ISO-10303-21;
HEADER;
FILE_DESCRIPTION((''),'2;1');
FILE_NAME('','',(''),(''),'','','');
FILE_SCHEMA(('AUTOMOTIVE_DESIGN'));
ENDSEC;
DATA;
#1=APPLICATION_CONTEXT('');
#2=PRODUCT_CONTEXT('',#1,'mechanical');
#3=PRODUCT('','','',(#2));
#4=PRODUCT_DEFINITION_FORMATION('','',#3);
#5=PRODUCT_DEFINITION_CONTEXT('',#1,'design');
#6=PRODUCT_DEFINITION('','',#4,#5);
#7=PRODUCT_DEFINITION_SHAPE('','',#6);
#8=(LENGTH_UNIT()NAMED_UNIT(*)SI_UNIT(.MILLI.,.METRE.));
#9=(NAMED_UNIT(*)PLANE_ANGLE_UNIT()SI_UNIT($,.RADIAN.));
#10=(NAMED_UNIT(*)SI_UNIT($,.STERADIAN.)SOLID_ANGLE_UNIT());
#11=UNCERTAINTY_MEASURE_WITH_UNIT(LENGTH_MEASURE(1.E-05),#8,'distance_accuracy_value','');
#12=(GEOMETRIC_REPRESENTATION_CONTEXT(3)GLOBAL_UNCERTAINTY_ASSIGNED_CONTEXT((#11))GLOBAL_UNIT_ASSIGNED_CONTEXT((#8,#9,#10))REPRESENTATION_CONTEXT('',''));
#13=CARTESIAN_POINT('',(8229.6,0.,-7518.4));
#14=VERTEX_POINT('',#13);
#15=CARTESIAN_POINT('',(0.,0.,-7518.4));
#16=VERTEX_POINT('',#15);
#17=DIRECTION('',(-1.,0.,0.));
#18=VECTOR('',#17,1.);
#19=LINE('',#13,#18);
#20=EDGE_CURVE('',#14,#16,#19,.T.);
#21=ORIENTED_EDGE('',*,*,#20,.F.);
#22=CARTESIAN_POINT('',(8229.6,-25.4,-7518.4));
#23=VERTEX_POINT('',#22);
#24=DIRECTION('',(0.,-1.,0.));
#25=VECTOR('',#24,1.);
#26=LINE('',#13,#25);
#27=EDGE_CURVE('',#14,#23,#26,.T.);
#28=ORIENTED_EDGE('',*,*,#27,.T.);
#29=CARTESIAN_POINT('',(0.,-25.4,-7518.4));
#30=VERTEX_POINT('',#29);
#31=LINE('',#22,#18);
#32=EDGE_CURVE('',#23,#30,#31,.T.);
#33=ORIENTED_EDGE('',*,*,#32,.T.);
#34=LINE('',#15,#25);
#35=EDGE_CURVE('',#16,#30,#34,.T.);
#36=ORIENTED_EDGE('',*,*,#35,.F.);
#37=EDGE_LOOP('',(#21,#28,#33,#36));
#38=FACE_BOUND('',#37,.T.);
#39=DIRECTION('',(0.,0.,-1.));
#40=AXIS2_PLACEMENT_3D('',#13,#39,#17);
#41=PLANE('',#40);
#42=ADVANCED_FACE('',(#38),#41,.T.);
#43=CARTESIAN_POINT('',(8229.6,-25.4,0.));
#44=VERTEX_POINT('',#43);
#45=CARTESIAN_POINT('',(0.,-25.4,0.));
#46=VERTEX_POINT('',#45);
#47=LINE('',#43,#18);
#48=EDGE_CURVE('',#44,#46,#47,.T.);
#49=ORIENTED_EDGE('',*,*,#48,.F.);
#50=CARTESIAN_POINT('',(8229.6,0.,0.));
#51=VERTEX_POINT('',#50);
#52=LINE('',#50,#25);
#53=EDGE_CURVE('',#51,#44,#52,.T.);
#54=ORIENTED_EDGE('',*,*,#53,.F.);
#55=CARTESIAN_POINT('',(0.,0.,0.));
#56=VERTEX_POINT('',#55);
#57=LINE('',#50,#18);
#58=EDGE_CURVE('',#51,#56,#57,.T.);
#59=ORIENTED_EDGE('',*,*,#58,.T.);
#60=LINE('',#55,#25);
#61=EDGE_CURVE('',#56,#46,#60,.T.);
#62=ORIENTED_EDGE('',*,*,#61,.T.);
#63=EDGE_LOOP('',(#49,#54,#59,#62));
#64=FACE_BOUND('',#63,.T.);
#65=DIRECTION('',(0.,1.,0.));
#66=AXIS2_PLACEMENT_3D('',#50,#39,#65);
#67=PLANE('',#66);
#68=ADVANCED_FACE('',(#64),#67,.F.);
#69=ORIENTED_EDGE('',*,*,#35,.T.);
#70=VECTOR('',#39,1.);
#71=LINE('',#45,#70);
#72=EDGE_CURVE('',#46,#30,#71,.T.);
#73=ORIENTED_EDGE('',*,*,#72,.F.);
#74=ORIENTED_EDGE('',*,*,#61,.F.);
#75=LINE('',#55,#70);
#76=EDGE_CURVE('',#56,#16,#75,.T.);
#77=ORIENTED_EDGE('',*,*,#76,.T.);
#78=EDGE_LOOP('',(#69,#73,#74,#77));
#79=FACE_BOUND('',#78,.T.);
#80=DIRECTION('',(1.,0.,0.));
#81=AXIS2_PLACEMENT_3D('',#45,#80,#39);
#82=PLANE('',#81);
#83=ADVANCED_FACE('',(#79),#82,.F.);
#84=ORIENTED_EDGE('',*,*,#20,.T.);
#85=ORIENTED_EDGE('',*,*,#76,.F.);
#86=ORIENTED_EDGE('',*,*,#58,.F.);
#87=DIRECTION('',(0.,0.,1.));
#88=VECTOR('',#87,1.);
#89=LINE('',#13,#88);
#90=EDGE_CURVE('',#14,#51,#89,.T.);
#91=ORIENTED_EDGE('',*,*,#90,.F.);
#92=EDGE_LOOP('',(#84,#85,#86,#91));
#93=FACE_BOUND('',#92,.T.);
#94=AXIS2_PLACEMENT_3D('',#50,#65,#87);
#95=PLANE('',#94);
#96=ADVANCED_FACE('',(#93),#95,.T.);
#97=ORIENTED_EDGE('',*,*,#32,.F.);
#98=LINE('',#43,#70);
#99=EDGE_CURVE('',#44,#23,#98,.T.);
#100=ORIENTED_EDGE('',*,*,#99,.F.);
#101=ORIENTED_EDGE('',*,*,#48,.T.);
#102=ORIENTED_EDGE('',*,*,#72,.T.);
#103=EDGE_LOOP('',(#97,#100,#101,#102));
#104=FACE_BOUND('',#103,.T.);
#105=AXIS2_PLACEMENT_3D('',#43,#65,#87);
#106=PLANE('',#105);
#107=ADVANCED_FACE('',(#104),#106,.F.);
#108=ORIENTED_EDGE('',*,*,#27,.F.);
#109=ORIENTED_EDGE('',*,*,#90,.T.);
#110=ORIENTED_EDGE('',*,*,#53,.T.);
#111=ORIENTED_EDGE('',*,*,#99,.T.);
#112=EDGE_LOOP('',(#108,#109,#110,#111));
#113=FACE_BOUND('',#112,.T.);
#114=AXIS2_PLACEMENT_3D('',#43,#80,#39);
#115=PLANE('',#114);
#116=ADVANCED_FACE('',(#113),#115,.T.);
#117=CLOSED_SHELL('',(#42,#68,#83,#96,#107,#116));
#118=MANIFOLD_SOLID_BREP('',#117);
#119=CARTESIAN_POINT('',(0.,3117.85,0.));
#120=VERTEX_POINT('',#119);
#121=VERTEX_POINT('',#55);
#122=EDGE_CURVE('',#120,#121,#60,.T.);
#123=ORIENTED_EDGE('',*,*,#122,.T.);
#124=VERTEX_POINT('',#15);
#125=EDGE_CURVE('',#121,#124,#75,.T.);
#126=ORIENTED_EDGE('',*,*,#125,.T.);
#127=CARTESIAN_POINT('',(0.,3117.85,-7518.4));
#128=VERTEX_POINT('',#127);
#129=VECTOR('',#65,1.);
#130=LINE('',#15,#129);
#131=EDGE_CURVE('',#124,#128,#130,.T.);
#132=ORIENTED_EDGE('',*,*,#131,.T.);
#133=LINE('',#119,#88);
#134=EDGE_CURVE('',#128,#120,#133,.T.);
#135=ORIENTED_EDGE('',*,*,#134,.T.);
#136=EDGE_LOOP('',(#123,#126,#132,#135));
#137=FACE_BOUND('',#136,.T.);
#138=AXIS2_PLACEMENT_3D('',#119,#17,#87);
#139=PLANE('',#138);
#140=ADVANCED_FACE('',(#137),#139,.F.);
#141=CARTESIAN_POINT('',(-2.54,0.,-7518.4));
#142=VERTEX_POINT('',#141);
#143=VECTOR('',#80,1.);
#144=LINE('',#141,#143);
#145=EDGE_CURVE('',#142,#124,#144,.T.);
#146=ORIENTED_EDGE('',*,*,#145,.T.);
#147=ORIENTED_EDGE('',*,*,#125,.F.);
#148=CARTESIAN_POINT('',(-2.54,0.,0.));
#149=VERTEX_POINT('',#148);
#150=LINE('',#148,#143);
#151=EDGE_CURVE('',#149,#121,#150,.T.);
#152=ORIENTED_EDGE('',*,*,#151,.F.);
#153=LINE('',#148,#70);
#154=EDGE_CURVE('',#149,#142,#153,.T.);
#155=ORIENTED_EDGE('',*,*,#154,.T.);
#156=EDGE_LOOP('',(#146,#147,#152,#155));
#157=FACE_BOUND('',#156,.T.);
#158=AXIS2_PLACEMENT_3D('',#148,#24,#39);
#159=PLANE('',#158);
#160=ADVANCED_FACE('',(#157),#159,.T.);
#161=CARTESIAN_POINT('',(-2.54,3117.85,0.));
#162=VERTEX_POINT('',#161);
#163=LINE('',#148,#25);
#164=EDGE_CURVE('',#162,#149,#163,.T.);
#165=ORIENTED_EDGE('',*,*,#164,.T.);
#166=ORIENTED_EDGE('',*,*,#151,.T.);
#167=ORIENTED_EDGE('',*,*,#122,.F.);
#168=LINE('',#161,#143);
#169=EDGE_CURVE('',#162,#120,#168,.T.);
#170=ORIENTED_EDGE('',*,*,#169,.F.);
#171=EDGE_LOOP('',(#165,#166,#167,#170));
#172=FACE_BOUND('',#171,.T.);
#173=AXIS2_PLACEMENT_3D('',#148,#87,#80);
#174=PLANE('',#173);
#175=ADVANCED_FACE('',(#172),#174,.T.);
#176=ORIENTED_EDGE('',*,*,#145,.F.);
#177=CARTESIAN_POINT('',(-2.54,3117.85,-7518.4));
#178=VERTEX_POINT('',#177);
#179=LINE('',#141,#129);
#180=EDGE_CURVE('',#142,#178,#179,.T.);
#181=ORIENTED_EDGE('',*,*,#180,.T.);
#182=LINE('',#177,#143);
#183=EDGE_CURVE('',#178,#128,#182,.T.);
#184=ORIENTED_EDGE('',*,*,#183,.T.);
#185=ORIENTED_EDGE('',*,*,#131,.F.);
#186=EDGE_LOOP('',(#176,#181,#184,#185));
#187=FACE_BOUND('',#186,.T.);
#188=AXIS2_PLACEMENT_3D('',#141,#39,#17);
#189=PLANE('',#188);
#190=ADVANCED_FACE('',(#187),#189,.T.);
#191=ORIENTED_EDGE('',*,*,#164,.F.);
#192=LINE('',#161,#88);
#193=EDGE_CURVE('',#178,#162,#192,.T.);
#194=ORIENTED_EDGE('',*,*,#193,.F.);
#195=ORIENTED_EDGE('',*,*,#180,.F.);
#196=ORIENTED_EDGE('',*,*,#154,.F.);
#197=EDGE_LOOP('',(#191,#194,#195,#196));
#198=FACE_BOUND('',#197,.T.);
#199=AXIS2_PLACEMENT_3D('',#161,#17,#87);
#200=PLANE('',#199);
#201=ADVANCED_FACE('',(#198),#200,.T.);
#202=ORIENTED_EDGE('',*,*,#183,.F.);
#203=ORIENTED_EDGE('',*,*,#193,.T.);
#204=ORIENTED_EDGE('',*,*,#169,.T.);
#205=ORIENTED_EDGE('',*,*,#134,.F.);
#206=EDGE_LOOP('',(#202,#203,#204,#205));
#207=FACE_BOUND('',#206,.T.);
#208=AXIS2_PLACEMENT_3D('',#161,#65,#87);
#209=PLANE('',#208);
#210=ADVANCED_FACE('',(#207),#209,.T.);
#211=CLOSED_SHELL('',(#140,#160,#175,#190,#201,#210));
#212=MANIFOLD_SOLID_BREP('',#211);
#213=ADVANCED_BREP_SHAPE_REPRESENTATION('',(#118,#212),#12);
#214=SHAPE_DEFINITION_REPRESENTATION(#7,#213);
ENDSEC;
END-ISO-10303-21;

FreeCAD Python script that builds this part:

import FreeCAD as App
import Part
import Sketcher
from FreeCAD import Vector
Q = App.Units.Quantity

doc = App.newDocument("Part")
body = doc.addObject("PartDesign::Body", "Body")

# Sketch on YZ plane
sketch1 = body.newObject("Sketcher::SketchObject", "Sketch")
sketch1.AttachmentSupport = (doc.getObject("YZ_Plane"), [""])
sketch1.MapMode = "FlatFace"
sketch1.addGeometry(Part.LineSegment(Vector(0, -7518.4, 0), Vector(0, 0, 0)), False)
sketch1.addGeometry(Part.LineSegment(Vector(0, 0, 0), Vector(-25.4, 0, 0)), False)
sketch1.addGeometry(Part.LineSegment(Vector(-25.4, 0, 0), Vector(-25.4, -7518.4, 0)), False)
sketch1.addGeometry(Part.LineSegment(Vector(-25.4, -7518.4, 0), Vector(0, -7518.4, 0)), False)
sketch1.addConstraint(Sketcher.Constraint("Coincident", 0, 2, 1, 1))
sketch1.addConstraint(Sketcher.Constraint("Coincident", 1, 2, 2, 1))
sketch1.addConstraint(Sketcher.Constraint("Coincident", 2, 2, 3, 1))
sketch1.addConstraint(Sketcher.Constraint("Coincident", 3, 2, 0, 1))
sketch1.addConstraint(Sketcher.Constraint("Vertical", 0))
sketch1.addConstraint(Sketcher.Constraint("Horizontal", 1))
sketch1.addConstraint(Sketcher.Constraint("Vertical", 2))
sketch1.addConstraint(Sketcher.Constraint("Horizontal", 3))
sketch1.addConstraint(Sketcher.Constraint("Coincident", 0, 2, -1, 1))
sketch1.addConstraint(Sketcher.Constraint("DistanceX", 1, 2, 1, 1, Q("1 in")))
sketch1.addConstraint(Sketcher.Constraint("DistanceY", 0, 1, 0, 2, Q("296 in")))
pad1 = body.newObject("PartDesign::Pad", "Pad")
pad1.Profile = sketch1
pad1.Length = Q("324 in")
body2 = doc.addObject("PartDesign::Body", "Body001")

# Sketch on YZ plane
sketch2 = body2.newObject("Sketcher::SketchObject", "Sketch001")
sketch2.AttachmentSupport = (doc.getObject("YZ_Plane001"), [""])
sketch2.MapMode = "FlatFace"
sketch2.addGeometry(Part.LineSegment(Vector(3117.85, 0, 0), Vector(0, 0, 0)), False)
sketch2.addGeometry(Part.LineSegment(Vector(0, 0, 0), Vector(0, -7518.4, 0)), False)
sketch2.addGeometry(Part.LineSegment(Vector(0, -7518.4, 0), Vector(3117.85, -7518.4, 0)), False)
sketch2.addGeometry(Part.LineSegment(Vector(3117.85, -7518.4, 0), Vector(3117.85, 0, 0)), False)
sketch2.addConstraint(Sketcher.Constraint("Coincident", 0, 2, 1, 1))
sketch2.addConstraint(Sketcher.Constraint("Coincident", 1, 2, 2, 1))
sketch2.addConstraint(Sketcher.Constraint("Coincident", 2, 2, 3, 1))
sketch2.addConstraint(Sketcher.Constraint("Coincident", 3, 2, 0, 1))
sketch2.addConstraint(Sketcher.Constraint("Horizontal", 0))
sketch2.addConstraint(Sketcher.Constraint("Vertical", 1))
sketch2.addConstraint(Sketcher.Constraint("Horizontal", 2))
sketch2.addConstraint(Sketcher.Constraint("Vertical", 3))
sketch2.addConstraint(Sketcher.Constraint("Coincident", 0, 2, -1, 1))
sketch2.addConstraint(Sketcher.Constraint("DistanceY", 1, 2, 1, 1, Q("296 in")))
sketch2.addConstraint(Sketcher.Constraint("DistanceX", 0, 2, 0, 1, Q("122.75 in")))
pad2 = body2.newObject("PartDesign::Pad", "Pad001")
pad2.Profile = sketch2
pad2.Length = Q("0.1 in")
pad2.Reversed = True

doc.recompute()
